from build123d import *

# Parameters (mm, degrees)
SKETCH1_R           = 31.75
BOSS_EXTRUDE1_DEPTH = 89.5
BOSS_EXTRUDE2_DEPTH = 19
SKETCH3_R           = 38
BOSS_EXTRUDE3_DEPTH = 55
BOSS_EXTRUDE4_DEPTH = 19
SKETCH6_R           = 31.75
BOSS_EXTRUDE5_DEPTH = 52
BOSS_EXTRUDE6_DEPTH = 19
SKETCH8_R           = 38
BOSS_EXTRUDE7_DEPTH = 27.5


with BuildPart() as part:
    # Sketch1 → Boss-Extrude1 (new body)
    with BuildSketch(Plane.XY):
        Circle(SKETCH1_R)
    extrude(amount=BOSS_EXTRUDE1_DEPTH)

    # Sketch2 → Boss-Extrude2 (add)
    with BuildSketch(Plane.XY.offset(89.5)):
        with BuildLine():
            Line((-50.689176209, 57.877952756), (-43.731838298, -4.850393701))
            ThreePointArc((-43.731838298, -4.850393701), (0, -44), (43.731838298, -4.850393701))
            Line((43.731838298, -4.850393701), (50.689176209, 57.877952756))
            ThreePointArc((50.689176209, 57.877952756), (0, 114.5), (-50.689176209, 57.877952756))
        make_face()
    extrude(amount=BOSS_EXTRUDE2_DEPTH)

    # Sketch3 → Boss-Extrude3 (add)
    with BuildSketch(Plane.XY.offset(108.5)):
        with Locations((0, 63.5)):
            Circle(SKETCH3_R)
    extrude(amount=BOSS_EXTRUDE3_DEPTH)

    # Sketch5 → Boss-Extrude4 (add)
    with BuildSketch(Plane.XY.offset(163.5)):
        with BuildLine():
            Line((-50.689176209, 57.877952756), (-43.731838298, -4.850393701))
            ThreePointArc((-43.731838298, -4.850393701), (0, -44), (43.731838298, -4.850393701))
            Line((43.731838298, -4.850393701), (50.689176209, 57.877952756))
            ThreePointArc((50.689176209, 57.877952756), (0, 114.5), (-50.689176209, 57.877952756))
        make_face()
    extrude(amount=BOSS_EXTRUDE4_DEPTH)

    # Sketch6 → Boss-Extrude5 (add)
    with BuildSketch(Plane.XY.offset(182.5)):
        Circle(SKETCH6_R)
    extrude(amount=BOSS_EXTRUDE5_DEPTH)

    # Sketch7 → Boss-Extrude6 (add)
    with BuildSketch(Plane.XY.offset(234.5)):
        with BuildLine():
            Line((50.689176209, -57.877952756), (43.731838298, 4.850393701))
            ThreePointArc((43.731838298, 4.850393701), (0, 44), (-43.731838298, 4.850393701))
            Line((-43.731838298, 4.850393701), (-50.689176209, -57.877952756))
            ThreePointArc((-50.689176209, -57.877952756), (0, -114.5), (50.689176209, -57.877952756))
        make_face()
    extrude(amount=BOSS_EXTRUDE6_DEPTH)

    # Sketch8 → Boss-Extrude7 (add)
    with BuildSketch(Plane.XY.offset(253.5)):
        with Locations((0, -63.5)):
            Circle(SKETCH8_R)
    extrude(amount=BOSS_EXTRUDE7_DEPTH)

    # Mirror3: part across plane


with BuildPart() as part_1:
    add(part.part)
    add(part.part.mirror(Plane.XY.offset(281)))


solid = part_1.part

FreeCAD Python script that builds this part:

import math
import FreeCAD as App
import Part
import Sketcher
from FreeCAD import Vector
Q = App.Units.Quantity

doc = App.newDocument("Part")
body = doc.addObject("PartDesign::Body", "Body")

# Sketch on XY plane
sketch1 = body.newObject("Sketcher::SketchObject", "Sketch")
sketch1.AttachmentSupport = (doc.getObject("XY_Plane"), [""])
sketch1.MapMode = "FlatFace"
sketch1.addGeometry(Part.Circle(Vector(0, 0, 0), Vector(0, 0, 1), 31.75), False)
sketch1.addConstraint([
    Sketcher.Constraint("Coincident", 0, 3, -1, 1),
    Sketcher.Constraint("Diameter", 0, Q("63.5 mm")),
])
pad1 = body.newObject("PartDesign::Pad", "Pad")
pad1.Profile = sketch1
pad1.Length = 89.5

# Sketch on XY plane
sketch2 = body.newObject("Sketcher::SketchObject", "Sketch001")
sketch2.AttachmentSupport = (doc.getObject("XY_Plane"), [""])
sketch2.MapMode = "FlatFace"
sketch2.AttachmentOffset = App.Placement(Vector(0, 0, 89.5), App.Rotation())
sketch2.addGeometry([
    Part.LineSegment(Vector(-50.689176, 57.877953, 0), Vector(-43.731838, -4.850394, 0)),
    Part.ArcOfCircle(Part.Circle(Vector(0, 0, 0), Vector(0, 0, 1), 44), math.radians(-173.671067), math.radians(-6.328933)),
    Part.LineSegment(Vector(43.731838, -4.850394, 0), Vector(50.689176, 57.877953, 0)),
    Part.ArcOfCircle(Part.Circle(Vector(0, 63.5, 0), Vector(0, 0, 1), 51), math.radians(-6.328933), math.radians(186.328933)),
], False)
sketch2.addConstraint([
    Sketcher.Constraint("Tangent", 0, 2, 1, 1),
    Sketcher.Constraint("Tangent", 1, 2, 2, 1),
    Sketcher.Constraint("Tangent", 2, 2, 3, 1),
    Sketcher.Constraint("Tangent", 3, 2, 0, 1),
    Sketcher.Constraint("Coincident", 1, 3, -1, 1),
    Sketcher.Constraint("PointOnObject", 3, 3, -2),
    Sketcher.Constraint("Radius", 1, Q("44 mm")),
    Sketcher.Constraint("Radius", 3, Q("51 mm")),
    Sketcher.Constraint("DistanceY", -1, 1, 3, 3, Q("63.5 mm")),
])
pad2 = body.newObject("PartDesign::Pad", "Pad001")
pad2.Profile = sketch2
pad2.Length = 19

# Sketch on XY plane
sketch3 = body.newObject("Sketcher::SketchObject", "Sketch002")
sketch3.AttachmentSupport = (doc.getObject("XY_Plane"), [""])
sketch3.MapMode = "FlatFace"
sketch3.AttachmentOffset = App.Placement(Vector(0, 0, 108.5), App.Rotation())
sketch3.addGeometry(Part.Circle(Vector(0, 63.5, 0), Vector(0, 0, 1), 38), False)
sketch3.addConstraint([
    Sketcher.Constraint("PointOnObject", 0, 3, -2),
    Sketcher.Constraint("Diameter", 0, Q("76 mm")),
    Sketcher.Constraint("DistanceY", -1, 1, 0, 3, Q("63.5 mm")),
])
pad3 = body.newObject("PartDesign::Pad", "Pad002")
pad3.Profile = sketch3
pad3.Length = 55

# Sketch on XY plane
sketch4 = body.newObject("Sketcher::SketchObject", "Sketch003")
sketch4.AttachmentSupport = (doc.getObject("XY_Plane"), [""])
sketch4.MapMode = "FlatFace"
sketch4.AttachmentOffset = App.Placement(Vector(0, 0, 163.5), App.Rotation())
sketch4.addGeometry([
    Part.LineSegment(Vector(-50.689176, 57.877953, 0), Vector(-43.731838, -4.850394, 0)),
    Part.ArcOfCircle(Part.Circle(Vector(0, 0, 0), Vector(0, 0, 1), 44), math.radians(-173.671067), math.radians(-6.328933)),
    Part.LineSegment(Vector(43.731838, -4.850394, 0), Vector(50.689176, 57.877953, 0)),
    Part.ArcOfCircle(Part.Circle(Vector(0, 63.5, 0), Vector(0, 0, 1), 51), math.radians(-6.328933), math.radians(186.328933)),
], False)
sketch4.addConstraint([
    Sketcher.Constraint("Tangent", 0, 2, 1, 1),
    Sketcher.Constraint("Tangent", 1, 2, 2, 1),
    Sketcher.Constraint("Tangent", 2, 2, 3, 1),
    Sketcher.Constraint("Tangent", 3, 2, 0, 1),
    Sketcher.Constraint("Coincident", 1, 3, -1, 1),
    Sketcher.Constraint("PointOnObject", 3, 3, -2),
    Sketcher.Constraint("Radius", 1, Q("44 mm")),
    Sketcher.Constraint("Radius", 3, Q("51 mm")),
    Sketcher.Constraint("DistanceY", -1, 1, 3, 3, Q("63.5 mm")),
])
pad4 = body.newObject("PartDesign::Pad", "Pad003")
pad4.Profile = sketch4
pad4.Length = 19

# Sketch on XY plane
sketch5 = body.newObject("Sketcher::SketchObject", "Sketch004")
sketch5.AttachmentSupport = (doc.getObject("XY_Plane"), [""])
sketch5.MapMode = "FlatFace"
sketch5.AttachmentOffset = App.Placement(Vector(0, 0, 182.5), App.Rotation())
sketch5.addGeometry(Part.Circle(Vector(0, 0, 0), Vector(0, 0, 1), 31.75), False)
sketch5.addConstraint([
    Sketcher.Constraint("Coincident", 0, 3, -1, 1),
    Sketcher.Constraint("Diameter", 0, Q("63.5 mm")),
])
pad5 = body.newObject("PartDesign::Pad", "Pad004")
pad5.Profile = sketch5
pad5.Length = 52

# Sketch on XY plane
sketch6 = body.newObject("Sketcher::SketchObject", "Sketch005")
sketch6.AttachmentSupport = (doc.getObject("XY_Plane"), [""])
sketch6.MapMode = "FlatFace"
sketch6.AttachmentOffset = App.Placement(Vector(0, 0, 234.5), App.Rotation())
sketch6.addGeometry([
    Part.LineSegment(Vector(50.689176, -57.877953, 0), Vector(43.731838, 4.850394, 0)),
    Part.ArcOfCircle(Part.Circle(Vector(0, 0, 0), Vector(0, 0, 1), 44), math.radians(6.328933), math.radians(173.671067)),
    Part.LineSegment(Vector(-43.731838, 4.850394, 0), Vector(-50.689176, -57.877953, 0)),
    Part.ArcOfCircle(Part.Circle(Vector(0, -63.5, 0), Vector(0, 0, 1), 51), math.radians(173.671067), math.radians(366.328933)),
], False)
sketch6.addConstraint([
    Sketcher.Constraint("Tangent", 0, 2, 1, 1),
    Sketcher.Constraint("Tangent", 1, 2, 2, 1),
    Sketcher.Constraint("Tangent", 2, 2, 3, 1),
    Sketcher.Constraint("Tangent", 3, 2, 0, 1),
    Sketcher.Constraint("Coincident", 1, 3, -1, 1),
    Sketcher.Constraint("PointOnObject", 3, 3, -2),
    Sketcher.Constraint("Radius", 1, Q("44 mm")),
    Sketcher.Constraint("Radius", 3, Q("51 mm")),
    Sketcher.Constraint("DistanceY", 3, 3, -1, 1, Q("63.5 mm")),
])
pad6 = body.newObject("PartDesign::Pad", "Pad005")
pad6.Profile = sketch6
pad6.Length = 19

# Sketch on XY plane
sketch7 = body.newObject("Sketcher::SketchObject", "Sketch006")
sketch7.AttachmentSupport = (doc.getObject("XY_Plane"), [""])
sketch7.MapMode = "FlatFace"
sketch7.AttachmentOffset = App.Placement(Vector(0, 0, 253.5), App.Rotation())
sketch7.addGeometry(Part.Circle(Vector(0, -63.5, 0), Vector(0, 0, 1), 38), False)
sketch7.addConstraint([
    Sketcher.Constraint("PointOnObject", 0, 3, -2),
    Sketcher.Constraint("Diameter", 0, Q("76 mm")),
    Sketcher.Constraint("DistanceY", 0, 3, -1, 1, Q("63.5 mm")),
])
pad7 = body.newObject("PartDesign::Pad", "Pad006")
pad7.Profile = sketch7
pad7.Length = 27.5
body2 = doc.addObject("PartDesign::Body", "Body001")
doc.recompute()

body2.BaseFeature = body
doc.recompute()

mirroring = doc.addObject("Part::Mirroring", "Mirroring")
mirroring.Source = body
mirroring.Base = Vector(0, 0, 281)
mirroring.Normal = Vector(0, 0, 1)
body3 = doc.addObject("PartDesign::Body", "Body002")
body3.BaseFeature = mirroring
boolean = body2.newObject("PartDesign::Boolean", "Boolean")
boolean.Type = "Fuse"
boolean.addObjects([body3])
doc.recompute()
mirroring.Visibility = False

doc.recompute()
